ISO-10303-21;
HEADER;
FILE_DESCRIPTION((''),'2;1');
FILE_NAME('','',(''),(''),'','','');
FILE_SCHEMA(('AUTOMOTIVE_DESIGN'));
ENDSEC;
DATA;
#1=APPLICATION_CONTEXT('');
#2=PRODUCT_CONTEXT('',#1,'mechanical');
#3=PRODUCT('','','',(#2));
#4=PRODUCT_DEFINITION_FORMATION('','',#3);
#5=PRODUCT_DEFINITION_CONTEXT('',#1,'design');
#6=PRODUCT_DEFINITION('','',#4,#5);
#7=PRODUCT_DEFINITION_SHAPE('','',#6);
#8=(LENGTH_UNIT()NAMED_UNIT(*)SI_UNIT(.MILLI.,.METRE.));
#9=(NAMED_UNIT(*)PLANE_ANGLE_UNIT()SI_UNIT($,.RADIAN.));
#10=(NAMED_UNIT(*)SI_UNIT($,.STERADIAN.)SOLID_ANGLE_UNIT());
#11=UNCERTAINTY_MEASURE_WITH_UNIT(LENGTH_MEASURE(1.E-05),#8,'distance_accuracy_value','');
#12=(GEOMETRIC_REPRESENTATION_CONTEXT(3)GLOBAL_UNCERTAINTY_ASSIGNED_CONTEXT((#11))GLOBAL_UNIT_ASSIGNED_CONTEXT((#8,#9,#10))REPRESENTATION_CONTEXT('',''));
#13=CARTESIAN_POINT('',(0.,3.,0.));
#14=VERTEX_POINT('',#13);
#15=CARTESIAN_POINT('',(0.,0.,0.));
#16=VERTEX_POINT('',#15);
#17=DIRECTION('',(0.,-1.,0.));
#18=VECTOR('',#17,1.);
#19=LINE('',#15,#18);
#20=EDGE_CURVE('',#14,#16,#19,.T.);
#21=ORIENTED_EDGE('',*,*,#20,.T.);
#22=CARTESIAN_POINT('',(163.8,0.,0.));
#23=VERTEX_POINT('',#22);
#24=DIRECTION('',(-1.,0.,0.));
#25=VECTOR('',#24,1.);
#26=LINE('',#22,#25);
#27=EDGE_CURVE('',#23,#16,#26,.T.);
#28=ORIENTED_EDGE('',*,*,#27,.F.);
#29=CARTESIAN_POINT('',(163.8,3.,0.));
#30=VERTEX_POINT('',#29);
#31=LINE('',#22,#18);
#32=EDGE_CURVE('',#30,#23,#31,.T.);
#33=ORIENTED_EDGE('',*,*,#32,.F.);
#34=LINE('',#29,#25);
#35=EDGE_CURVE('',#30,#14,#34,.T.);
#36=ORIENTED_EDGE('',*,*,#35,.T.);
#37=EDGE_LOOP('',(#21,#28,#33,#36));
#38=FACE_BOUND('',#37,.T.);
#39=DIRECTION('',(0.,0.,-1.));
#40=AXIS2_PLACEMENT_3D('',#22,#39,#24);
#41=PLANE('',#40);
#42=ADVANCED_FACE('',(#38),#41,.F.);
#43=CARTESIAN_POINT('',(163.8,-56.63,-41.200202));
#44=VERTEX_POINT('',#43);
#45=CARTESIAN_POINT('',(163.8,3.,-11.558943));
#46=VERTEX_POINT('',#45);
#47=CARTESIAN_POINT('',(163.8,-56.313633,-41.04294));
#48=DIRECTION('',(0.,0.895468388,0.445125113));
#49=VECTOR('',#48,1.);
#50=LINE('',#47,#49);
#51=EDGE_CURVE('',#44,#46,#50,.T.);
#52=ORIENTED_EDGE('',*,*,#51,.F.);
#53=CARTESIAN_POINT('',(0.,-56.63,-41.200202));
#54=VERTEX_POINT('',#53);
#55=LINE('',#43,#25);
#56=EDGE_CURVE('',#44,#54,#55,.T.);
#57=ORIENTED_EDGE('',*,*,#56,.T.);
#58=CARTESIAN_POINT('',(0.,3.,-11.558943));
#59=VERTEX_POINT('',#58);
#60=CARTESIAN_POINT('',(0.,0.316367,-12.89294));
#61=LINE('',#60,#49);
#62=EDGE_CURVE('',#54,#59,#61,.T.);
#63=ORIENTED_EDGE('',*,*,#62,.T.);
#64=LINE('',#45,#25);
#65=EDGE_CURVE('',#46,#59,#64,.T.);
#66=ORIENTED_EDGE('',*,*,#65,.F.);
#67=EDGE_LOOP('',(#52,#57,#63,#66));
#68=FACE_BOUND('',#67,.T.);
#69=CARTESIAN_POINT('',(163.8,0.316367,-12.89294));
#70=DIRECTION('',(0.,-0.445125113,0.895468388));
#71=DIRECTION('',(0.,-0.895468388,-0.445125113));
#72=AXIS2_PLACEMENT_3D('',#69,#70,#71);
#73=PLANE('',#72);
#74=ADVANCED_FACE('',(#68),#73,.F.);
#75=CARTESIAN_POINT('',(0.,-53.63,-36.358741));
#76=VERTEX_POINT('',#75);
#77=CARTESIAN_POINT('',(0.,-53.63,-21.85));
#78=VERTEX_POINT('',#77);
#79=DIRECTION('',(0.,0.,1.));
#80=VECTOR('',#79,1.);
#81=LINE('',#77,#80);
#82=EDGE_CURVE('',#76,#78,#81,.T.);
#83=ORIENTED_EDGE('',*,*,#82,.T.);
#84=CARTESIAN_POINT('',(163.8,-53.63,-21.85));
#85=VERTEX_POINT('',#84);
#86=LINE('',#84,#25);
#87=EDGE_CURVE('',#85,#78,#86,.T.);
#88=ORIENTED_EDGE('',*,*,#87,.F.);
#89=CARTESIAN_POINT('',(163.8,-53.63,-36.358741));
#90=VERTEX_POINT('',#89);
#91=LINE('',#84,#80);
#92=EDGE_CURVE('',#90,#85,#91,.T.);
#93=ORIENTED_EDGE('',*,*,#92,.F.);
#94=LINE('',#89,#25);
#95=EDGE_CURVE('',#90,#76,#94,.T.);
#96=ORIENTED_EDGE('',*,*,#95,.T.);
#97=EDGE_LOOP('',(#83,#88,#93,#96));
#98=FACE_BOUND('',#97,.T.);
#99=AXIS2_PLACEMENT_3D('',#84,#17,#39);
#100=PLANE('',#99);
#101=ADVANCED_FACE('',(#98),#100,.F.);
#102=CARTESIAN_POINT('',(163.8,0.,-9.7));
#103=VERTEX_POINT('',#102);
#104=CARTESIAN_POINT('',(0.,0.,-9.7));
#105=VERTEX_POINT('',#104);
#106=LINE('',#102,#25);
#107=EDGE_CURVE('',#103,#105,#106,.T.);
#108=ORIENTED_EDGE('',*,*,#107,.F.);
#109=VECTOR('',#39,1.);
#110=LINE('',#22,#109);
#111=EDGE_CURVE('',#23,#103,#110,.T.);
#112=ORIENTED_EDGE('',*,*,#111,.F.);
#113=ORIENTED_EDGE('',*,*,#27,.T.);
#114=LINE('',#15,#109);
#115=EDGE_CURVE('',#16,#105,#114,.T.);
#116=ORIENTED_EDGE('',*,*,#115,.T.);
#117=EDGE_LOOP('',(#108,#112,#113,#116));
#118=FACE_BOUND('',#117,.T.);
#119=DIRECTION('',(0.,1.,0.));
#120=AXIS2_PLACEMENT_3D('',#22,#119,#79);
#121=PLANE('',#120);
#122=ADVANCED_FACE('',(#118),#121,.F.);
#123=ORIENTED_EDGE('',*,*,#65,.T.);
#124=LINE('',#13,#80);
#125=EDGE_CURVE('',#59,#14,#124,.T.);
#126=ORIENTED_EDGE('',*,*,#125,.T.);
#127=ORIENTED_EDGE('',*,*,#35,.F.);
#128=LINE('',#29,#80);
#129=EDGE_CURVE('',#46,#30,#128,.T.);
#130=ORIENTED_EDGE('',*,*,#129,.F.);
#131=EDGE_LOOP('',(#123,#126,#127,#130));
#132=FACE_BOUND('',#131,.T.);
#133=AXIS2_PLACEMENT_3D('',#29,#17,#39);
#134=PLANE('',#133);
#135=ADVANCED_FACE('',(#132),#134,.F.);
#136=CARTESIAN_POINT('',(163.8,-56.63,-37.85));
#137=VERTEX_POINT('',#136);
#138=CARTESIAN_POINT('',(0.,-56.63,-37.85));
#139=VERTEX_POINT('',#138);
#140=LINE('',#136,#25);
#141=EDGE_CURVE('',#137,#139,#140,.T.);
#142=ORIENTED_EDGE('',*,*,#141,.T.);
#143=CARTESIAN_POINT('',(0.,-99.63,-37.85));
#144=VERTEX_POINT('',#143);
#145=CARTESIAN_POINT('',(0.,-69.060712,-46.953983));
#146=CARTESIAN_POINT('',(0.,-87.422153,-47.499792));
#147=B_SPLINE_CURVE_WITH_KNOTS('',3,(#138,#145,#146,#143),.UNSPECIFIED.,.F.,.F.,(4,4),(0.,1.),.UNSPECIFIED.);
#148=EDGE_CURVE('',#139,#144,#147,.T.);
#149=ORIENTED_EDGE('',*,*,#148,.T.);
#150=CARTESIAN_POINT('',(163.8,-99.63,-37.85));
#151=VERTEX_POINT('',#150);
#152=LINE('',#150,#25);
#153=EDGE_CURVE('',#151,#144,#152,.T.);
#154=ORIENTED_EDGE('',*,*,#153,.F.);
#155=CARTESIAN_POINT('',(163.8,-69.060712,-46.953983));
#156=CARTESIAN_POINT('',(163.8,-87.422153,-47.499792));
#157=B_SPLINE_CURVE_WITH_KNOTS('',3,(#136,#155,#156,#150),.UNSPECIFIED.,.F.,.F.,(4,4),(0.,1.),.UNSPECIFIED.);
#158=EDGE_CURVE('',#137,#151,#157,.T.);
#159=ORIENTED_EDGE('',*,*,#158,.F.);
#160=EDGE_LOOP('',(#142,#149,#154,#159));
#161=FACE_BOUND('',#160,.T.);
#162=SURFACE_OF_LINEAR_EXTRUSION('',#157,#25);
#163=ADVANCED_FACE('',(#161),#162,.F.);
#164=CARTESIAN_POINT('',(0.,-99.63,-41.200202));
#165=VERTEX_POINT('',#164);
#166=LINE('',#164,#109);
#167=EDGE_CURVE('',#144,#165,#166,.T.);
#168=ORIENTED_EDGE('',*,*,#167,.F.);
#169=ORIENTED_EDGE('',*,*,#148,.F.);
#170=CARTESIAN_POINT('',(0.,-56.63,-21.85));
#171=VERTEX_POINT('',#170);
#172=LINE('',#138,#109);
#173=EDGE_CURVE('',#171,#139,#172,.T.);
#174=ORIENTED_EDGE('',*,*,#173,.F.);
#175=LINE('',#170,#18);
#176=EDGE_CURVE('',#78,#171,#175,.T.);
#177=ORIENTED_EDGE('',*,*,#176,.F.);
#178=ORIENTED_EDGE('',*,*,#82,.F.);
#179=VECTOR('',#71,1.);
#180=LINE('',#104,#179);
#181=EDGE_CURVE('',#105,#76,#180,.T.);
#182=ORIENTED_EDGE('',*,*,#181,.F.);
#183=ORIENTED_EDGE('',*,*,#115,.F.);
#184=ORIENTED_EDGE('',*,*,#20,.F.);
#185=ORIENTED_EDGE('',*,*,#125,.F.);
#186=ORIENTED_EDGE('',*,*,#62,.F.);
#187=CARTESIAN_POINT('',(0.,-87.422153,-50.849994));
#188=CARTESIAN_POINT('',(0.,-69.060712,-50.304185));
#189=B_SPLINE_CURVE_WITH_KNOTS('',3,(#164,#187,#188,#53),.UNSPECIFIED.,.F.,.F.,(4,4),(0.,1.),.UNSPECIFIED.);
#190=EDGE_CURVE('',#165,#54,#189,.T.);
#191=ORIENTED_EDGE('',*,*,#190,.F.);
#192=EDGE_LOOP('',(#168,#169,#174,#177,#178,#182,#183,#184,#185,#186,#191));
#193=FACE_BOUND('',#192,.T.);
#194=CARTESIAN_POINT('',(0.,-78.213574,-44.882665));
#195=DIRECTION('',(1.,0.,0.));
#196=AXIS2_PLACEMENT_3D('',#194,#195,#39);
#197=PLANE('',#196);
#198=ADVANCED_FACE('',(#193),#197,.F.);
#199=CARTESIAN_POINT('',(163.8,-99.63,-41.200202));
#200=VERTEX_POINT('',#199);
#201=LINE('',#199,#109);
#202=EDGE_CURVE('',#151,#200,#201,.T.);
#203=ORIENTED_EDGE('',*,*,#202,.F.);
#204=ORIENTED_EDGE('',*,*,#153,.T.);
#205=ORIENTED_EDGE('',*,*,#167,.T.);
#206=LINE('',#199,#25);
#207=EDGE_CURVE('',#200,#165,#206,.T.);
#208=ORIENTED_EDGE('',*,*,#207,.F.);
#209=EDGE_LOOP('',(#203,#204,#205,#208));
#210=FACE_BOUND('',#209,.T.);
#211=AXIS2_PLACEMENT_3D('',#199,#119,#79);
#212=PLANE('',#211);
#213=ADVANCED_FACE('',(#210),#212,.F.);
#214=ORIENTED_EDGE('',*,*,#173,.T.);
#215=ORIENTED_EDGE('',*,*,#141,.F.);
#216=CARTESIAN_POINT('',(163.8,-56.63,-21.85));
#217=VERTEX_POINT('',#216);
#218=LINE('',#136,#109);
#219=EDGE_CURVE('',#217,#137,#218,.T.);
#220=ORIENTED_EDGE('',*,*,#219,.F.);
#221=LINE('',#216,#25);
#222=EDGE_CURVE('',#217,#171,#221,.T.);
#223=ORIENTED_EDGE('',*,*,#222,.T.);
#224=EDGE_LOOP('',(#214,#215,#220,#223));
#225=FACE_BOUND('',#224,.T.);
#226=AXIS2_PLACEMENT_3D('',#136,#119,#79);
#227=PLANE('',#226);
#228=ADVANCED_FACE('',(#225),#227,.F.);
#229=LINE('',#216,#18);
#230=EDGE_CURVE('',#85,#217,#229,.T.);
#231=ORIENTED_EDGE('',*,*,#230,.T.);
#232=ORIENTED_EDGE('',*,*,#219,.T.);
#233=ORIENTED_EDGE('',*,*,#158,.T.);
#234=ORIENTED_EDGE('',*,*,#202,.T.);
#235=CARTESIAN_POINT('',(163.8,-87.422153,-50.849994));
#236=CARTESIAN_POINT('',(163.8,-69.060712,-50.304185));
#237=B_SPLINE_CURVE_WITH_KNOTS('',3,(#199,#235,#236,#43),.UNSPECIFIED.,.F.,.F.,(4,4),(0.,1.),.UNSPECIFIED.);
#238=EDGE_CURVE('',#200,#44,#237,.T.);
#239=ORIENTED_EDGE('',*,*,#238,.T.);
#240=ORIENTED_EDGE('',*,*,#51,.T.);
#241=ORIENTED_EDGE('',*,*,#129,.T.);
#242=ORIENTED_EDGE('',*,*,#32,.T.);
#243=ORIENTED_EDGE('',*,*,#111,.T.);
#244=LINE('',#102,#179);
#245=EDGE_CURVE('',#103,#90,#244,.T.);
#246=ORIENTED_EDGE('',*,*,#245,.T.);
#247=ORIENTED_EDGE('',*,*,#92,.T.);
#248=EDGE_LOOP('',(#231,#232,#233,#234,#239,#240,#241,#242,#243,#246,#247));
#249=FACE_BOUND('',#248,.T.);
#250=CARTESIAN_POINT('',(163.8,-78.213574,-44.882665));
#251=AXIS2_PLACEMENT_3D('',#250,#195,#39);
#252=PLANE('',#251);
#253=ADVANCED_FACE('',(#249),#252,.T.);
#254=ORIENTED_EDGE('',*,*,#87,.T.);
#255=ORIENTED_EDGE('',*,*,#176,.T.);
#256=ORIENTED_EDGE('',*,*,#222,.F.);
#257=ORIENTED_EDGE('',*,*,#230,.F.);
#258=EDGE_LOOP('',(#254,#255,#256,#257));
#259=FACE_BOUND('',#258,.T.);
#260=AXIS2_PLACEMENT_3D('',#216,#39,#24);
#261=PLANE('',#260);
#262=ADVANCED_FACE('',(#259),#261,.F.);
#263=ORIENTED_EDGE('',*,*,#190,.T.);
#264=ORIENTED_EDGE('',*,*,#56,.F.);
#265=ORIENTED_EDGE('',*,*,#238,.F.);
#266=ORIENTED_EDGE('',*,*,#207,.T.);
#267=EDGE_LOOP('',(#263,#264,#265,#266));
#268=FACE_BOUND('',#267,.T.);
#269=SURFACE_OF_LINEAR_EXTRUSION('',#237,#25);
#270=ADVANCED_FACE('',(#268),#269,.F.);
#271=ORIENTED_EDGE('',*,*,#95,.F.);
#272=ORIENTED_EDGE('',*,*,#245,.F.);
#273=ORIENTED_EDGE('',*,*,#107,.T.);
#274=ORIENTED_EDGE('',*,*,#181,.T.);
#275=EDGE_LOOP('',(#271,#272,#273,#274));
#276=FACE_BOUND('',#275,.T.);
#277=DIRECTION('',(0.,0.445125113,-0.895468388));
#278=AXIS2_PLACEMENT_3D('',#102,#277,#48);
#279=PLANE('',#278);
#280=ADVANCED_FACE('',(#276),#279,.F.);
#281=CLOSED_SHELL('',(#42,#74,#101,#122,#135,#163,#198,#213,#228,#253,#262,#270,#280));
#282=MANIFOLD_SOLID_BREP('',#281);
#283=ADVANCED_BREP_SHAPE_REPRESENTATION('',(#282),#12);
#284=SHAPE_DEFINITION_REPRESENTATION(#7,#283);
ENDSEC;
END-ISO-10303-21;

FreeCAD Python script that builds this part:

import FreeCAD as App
import Part
import Sketcher

V = App.Vector
Q = App.Units.Quantity

doc = App.newDocument("Part")
body = doc.addObject("PartDesign::Body", "Body")

# Sketch on YZ plane
sketch1 = doc.addObject("Sketcher::SketchObject", "Sketch")
body.addObject(sketch1)
sketch1.AttachmentSupport = (doc.YZ_Plane, [""])
sketch1.MapMode = "FlatFace"
sketch1.addGeometry([
    Part.LineSegment(V(0, -9.7, 0), V(-53.63, -36.358741, 0)),  # 0
    Part.LineSegment(V(-53.63, -36.358741, 0), V(-53.63, -21.85, 0)),  # 1
    Part.LineSegment(V(-53.63, -21.85, 0), V(-56.63, -21.85, 0)),  # 2
    Part.LineSegment(V(-56.63, -21.85, 0), V(-56.63, -37.85, 0)),  # 3
    Part.BSplineCurve([V(-56.63, -37.85, 0), V(-69.060712, -46.953983, 0), V(-87.422153, -47.499792, 0), V(-99.63, -37.85, 0)], [4, 4], [0, 1], False, 3, [1, 1, 1, 1], False),  # 4
    Part.LineSegment(V(-99.63, -37.85, 0), V(-99.63, -41.200202, 0)),  # 5
    Part.BSplineCurve([V(-56.63, -41.200202, 0), V(-69.060712, -50.304185, 0), V(-87.422153, -50.849994, 0), V(-99.63, -41.200202, 0)], [4, 4], [0, 1], False, 3, [1, 1, 1, 1], False),  # 6
    Part.LineSegment(V(-56.63, -41.200202, 0), V(-56.313633, -41.04294, 0)),  # 7
    Part.LineSegment(V(-56.313633, -41.04294, 0), V(0.316367, -12.89294, 0)),  # 8
    Part.LineSegment(V(0.316367, -12.89294, 0), V(3, -11.558943, 0)),  # 9
    Part.LineSegment(V(3, -11.558943, 0), V(3, 0, 0)),  # 10
    Part.LineSegment(V(3, 0, 0), V(0, 0, 0)),  # 11
    Part.LineSegment(V(0, 0, 0), V(0, -9.7, 0)),  # 12
], False)
sketch1.addConstraint([
    Sketcher.Constraint("Block", 4),
    Sketcher.Constraint("Block", 6),
    Sketcher.Constraint("Coincident", 0, 2, 1, 1),
    Sketcher.Constraint("Coincident", 1, 2, 2, 1),
    Sketcher.Constraint("Coincident", 2, 2, 3, 1),
    Sketcher.Constraint("Coincident", 3, 2, 4, 1),
    Sketcher.Constraint("Coincident", 4, 2, 5, 1),
    Sketcher.Constraint("Coincident", 5, 2, 6, 2),
    Sketcher.Constraint("Coincident", 6, 1, 7, 1),
    Sketcher.Constraint("Coincident", 7, 2, 8, 1),
    Sketcher.Constraint("Coincident", 8, 2, 9, 1),
    Sketcher.Constraint("Coincident", 9, 2, 10, 1),
    Sketcher.Constraint("Coincident", 10, 2, 11, 1),
    Sketcher.Constraint("Coincident", 11, 2, 12, 1),
    Sketcher.Constraint("Coincident", 12, 2, 0, 1),
    Sketcher.Constraint("Vertical", 1),
    Sketcher.Constraint("Horizontal", 2),
    Sketcher.Constraint("Vertical", 3),
    Sketcher.Constraint("Vertical", 10),
    Sketcher.Constraint("Horizontal", 11),
    Sketcher.Constraint("Vertical", 12),
    Sketcher.Constraint("Coincident", 11, 2, -1, 1),
    Sketcher.Constraint("DistanceX", 2, 2, 2, 1, Q("3 mm")),
    Sketcher.Constraint("DistanceX", 11, 2, 11, 1, Q("3 mm")),
    Sketcher.Constraint("DistanceY", 3, 2, 3, 1, Q("16 mm")),
    Sketcher.Constraint("DistanceY", 12, 2, 12, 1, Q("9.7 mm")),
    Sketcher.Constraint("DistanceX", 7, 2, 8, 2, Q("56.63 mm")),
    Sketcher.Constraint("DistanceY", 7, 2, 8, 2, Q("28.15 mm")),
    Sketcher.Constraint("DistanceY", 1, 1, 1, 2, Q("14.508741 mm")),
    Sketcher.Constraint("DistanceY", 7, 2, 0, 2, Q("4.684199 mm")),
    Sketcher.Constraint("DistanceY", 10, 1, 10, 2, Q("11.558943 mm")),
    Sketcher.Constraint("Distance", 7, Q("0.353298 mm")),
])
pad1 = doc.addObject("PartDesign::Pad", "Pad")
body.addObject(pad1)
pad1.Profile = sketch1
pad1.Length = 163.8

doc.recompute()
